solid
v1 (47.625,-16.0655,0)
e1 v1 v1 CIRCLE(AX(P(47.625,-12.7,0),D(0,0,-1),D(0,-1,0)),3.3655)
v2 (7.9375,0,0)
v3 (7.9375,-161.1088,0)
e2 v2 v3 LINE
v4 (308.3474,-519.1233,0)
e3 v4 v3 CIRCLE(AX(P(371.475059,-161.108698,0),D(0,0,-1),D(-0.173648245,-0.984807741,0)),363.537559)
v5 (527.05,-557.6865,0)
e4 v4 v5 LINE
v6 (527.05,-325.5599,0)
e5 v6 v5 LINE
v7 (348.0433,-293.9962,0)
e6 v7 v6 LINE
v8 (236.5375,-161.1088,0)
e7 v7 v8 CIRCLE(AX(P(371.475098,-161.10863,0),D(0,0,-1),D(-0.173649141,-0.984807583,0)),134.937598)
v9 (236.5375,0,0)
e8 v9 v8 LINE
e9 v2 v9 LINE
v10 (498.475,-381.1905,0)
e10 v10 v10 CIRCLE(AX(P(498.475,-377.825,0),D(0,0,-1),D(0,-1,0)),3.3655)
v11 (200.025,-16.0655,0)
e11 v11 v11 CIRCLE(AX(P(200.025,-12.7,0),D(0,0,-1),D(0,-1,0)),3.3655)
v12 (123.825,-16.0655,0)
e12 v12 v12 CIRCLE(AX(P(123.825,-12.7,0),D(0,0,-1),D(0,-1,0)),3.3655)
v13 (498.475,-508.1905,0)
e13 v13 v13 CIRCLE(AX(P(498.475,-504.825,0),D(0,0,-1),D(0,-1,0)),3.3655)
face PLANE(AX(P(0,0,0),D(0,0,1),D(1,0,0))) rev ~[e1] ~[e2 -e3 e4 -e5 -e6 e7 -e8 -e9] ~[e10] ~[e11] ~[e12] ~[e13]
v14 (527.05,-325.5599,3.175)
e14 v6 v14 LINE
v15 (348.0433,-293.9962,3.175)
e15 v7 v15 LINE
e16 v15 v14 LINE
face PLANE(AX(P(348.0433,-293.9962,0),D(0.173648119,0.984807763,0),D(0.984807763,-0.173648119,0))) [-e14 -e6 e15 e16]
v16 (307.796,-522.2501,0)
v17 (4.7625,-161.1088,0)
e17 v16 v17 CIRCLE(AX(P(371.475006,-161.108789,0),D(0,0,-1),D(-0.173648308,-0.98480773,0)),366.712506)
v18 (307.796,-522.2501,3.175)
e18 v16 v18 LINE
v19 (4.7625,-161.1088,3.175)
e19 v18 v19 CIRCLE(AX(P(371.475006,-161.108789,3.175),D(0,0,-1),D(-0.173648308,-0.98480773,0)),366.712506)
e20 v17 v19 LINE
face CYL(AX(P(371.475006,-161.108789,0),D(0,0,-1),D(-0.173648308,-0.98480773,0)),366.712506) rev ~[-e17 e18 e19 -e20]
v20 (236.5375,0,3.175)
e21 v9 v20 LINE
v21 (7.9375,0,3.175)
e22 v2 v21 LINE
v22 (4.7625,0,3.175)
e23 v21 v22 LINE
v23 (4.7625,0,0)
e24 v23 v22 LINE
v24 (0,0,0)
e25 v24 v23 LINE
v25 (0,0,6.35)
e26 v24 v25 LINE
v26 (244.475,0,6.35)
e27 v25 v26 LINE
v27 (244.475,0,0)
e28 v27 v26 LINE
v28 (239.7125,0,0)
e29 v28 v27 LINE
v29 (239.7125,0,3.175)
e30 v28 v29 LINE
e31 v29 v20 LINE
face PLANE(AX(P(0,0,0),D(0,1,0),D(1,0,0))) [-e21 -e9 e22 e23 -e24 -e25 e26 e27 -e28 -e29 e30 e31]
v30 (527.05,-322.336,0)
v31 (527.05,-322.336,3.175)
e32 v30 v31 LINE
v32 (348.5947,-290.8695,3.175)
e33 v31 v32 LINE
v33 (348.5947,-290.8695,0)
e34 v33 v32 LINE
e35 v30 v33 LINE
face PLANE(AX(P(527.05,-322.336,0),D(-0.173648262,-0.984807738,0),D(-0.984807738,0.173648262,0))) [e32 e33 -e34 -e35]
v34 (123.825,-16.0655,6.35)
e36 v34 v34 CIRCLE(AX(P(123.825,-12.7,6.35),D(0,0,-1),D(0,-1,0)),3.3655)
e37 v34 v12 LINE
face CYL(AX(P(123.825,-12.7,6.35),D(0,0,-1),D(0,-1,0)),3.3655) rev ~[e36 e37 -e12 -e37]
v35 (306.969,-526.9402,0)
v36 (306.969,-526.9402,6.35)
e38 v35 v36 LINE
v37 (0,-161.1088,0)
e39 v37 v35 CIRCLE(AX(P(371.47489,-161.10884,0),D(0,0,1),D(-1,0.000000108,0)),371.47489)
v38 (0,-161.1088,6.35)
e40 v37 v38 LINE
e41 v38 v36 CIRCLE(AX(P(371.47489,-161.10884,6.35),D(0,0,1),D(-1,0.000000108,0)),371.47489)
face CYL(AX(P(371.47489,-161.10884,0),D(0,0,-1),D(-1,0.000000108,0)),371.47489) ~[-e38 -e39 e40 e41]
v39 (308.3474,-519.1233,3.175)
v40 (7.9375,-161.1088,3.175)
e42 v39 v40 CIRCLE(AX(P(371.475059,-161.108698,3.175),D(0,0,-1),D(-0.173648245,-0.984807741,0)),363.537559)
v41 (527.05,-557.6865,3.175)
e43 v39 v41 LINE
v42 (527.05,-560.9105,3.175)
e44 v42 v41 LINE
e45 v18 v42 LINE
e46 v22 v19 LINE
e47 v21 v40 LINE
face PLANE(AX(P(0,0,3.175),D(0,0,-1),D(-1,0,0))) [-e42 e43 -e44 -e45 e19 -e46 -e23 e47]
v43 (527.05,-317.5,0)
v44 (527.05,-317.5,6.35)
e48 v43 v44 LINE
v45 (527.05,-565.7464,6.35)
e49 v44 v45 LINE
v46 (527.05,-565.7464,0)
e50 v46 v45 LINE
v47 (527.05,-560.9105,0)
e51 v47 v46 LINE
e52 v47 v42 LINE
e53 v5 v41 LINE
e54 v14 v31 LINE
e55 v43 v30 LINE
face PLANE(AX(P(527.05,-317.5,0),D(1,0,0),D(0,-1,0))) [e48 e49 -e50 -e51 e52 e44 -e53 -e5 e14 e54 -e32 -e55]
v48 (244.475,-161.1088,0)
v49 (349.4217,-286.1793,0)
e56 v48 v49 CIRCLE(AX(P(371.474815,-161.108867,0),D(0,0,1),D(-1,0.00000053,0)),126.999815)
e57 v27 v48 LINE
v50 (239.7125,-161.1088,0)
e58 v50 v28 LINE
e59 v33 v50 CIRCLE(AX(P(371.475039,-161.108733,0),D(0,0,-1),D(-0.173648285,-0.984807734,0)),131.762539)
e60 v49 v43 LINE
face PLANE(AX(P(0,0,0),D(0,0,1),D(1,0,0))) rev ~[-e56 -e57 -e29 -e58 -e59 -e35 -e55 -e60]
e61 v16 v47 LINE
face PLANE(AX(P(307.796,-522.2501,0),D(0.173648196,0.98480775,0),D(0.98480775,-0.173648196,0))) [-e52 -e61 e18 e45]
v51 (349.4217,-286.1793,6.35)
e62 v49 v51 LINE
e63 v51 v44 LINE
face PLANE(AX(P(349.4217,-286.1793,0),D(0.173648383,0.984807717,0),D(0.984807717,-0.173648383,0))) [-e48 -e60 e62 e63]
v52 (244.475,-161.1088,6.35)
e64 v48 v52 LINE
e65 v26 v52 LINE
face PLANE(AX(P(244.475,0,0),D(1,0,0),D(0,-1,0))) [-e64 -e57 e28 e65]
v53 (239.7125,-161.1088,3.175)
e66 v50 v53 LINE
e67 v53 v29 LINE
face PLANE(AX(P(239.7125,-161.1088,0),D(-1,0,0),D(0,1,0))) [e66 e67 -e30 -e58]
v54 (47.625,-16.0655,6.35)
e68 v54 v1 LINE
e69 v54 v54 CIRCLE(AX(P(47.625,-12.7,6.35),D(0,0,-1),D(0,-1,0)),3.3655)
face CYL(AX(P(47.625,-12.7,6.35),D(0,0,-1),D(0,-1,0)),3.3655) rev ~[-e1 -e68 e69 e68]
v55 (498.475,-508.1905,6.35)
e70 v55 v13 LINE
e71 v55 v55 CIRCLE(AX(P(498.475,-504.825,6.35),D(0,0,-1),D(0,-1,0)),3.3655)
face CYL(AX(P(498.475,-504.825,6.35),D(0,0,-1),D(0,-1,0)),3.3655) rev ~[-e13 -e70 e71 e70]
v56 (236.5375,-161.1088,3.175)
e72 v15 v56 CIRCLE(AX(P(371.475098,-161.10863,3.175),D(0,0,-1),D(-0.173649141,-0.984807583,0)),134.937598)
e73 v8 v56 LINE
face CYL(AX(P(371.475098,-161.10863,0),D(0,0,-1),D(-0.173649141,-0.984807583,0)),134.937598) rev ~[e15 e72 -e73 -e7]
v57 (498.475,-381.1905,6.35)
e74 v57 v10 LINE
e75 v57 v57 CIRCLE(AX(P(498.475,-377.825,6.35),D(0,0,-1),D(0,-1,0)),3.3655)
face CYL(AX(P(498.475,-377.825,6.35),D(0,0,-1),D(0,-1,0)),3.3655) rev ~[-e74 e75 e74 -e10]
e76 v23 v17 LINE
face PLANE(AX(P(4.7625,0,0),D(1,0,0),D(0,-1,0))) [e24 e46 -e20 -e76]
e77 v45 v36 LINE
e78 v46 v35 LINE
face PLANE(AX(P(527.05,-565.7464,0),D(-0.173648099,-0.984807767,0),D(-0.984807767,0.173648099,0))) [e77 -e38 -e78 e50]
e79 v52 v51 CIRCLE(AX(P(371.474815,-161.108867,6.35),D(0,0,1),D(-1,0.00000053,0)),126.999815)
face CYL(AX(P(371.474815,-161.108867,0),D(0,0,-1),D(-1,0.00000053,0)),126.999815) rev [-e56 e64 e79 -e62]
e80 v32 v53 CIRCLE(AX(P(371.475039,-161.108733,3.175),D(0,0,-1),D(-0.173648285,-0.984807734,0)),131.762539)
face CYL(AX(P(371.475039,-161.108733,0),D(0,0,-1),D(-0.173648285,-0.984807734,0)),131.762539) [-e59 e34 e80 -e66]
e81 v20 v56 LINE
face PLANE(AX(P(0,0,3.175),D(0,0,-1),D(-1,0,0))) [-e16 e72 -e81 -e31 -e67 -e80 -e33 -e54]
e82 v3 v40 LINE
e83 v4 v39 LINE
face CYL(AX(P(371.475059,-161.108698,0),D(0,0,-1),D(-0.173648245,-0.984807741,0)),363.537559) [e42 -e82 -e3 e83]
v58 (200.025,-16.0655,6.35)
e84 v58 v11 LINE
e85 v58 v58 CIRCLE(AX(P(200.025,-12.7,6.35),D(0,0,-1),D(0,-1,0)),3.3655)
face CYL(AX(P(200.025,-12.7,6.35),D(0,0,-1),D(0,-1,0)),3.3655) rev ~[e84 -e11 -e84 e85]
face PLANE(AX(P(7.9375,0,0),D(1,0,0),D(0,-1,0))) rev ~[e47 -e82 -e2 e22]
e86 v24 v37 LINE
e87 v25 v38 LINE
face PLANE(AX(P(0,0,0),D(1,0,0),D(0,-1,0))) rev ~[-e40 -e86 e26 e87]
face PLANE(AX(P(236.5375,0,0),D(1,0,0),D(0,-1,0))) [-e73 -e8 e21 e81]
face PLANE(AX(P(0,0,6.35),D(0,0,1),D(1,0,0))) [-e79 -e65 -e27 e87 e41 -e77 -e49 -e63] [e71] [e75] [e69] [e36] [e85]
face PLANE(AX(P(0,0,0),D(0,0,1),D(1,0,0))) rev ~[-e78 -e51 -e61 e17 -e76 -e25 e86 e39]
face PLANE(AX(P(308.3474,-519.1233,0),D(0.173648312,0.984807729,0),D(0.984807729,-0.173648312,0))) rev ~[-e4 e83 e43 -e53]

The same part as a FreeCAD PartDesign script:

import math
import FreeCAD as App
import Part
import Sketcher
from FreeCAD import Vector
Q = App.Units.Quantity

doc = App.newDocument("Part")
body = doc.addObject("PartDesign::Body", "Body")

sketch1 = body.newObject("Sketcher::SketchObject", "Sketch")
sketch1.AttachmentSupport = (doc.getObject("XY_Plane"), [""])
sketch1.MapMode = "FlatFace"
sketch1.addGeometry([
    Part.LineSegment(Vector(244, 0, 0), Vector(0, 0, 0)),
    Part.LineSegment(Vector(0, 0, 0), Vector(0, -161, 0)),
    Part.ArcOfCircle(Part.Circle(Vector(371, -161, 0), Vector(0, 0, 1), 371), math.radians(180), math.radians(260)),
    Part.LineSegment(Vector(307, -527, 0), Vector(527, -566, 0)),
    Part.LineSegment(Vector(527, -566, 0), Vector(527, -318, 0)),
    Part.LineSegment(Vector(527, -318, 0), Vector(349, -286, 0)),
    Part.ArcOfCircle(Part.Circle(Vector(371, -161, 0), Vector(0, 0, 1), 127), math.radians(180), math.radians(260)),
    Part.LineSegment(Vector(244, -161, 0), Vector(244, 0, 0)),
], False)
sketch1.addConstraint([
    Sketcher.Constraint("Coincident", 0, 2, 1, 1),
    Sketcher.Constraint("Tangent", 1, 2, 2, 1),
    Sketcher.Constraint("Tangent", 2, 2, 3, 1),
    Sketcher.Constraint("Coincident", 3, 2, 4, 1),
    Sketcher.Constraint("Coincident", 4, 2, 5, 1),
    Sketcher.Constraint("Tangent", 5, 2, 6, 2),
    Sketcher.Constraint("Tangent", 6, 1, 7, 1),
    Sketcher.Constraint("Coincident", 7, 2, 0, 1),
    Sketcher.Constraint("Horizontal", 0),
    Sketcher.Constraint("Vertical", 1),
    Sketcher.Constraint("Vertical", 4),
    Sketcher.Constraint("Vertical", 7),
    Sketcher.Constraint("Coincident", 0, 2, -1, 1),
    Sketcher.Constraint("Coincident", 6, 3, 2, 3),
    Sketcher.Constraint("Parallel", 3, 5),
    Sketcher.Constraint("Radius", 6, Q("5 in")),
    Sketcher.Constraint("Radius", 2, Q("14.625 in")),
    Sketcher.Constraint("DistanceY", 4, 2, -1, 1, Q("12.5 in")),
    Sketcher.Constraint("DistanceX", -1, 1, 3, 2, Q("20.75 in")),
    Sketcher.Constraint("Angle", 3, Q("-10 deg")),
])
pad1 = body.newObject("PartDesign::Pad", "Pad")
pad1.Profile = sketch1
pad1.Length = Q("0.25 in")

sketch2 = body.newObject("Sketcher::SketchObject", "Sketch001")
sketch2.AttachmentSupport = (doc.getObject("XY_Plane"), [""])
sketch2.MapMode = "FlatFace"
sketch2.addGeometry([
    Part.LineSegment(Vector(4.8, -161.1, 0), Vector(4.8, 0, 0)),
    Part.LineSegment(Vector(4.8, 0, 0), Vector(7.9, 0, 0)),
    Part.LineSegment(Vector(7.9, 0, 0), Vector(7.9, -161.1, 0)),
    Part.ArcOfCircle(Part.Circle(Vector(371.5, -161.1, 0), Vector(0, 0, 1), 363.5), math.radians(180), math.radians(260)),
    Part.LineSegment(Vector(308.3, -519.1, 0), Vector(527, -557.7, 0)),
    Part.LineSegment(Vector(527, -557.7, 0), Vector(527, -560.9, 0)),
    Part.LineSegment(Vector(527, -560.9, 0), Vector(307.8, -522.3, 0)),
    Part.ArcOfCircle(Part.Circle(Vector(371.5, -161.1, 0), Vector(0, 0, 1), 366.7), math.radians(180), math.radians(260)),
    Part.LineSegment(Vector(236.5, -161.1, 0), Vector(236.5, 0, 0)),
    Part.LineSegment(Vector(236.5, 0, 0), Vector(239.7, 0, 0)),
    Part.LineSegment(Vector(239.7, 0, 0), Vector(239.7, -161.1, 0)),
    Part.ArcOfCircle(Part.Circle(Vector(371.5, -161.1, 0), Vector(0, 0, 1), 131.8), math.radians(180), math.radians(260)),
    Part.LineSegment(Vector(348.6, -290.9, 0), Vector(527, -322.3, 0)),
    Part.LineSegment(Vector(527, -322.3, 0), Vector(527, -325.6, 0)),
    Part.LineSegment(Vector(527, -325.6, 0), Vector(348, -294, 0)),
    Part.ArcOfCircle(Part.Circle(Vector(371.5, -161.1, 0), Vector(0, 0, 1), 134.9), math.radians(180), math.radians(260)),
], False)
sketch2.addConstraint([
    Sketcher.Constraint("Coincident", 0, 2, 1, 1),
    Sketcher.Constraint("Coincident", 1, 2, 2, 1),
    Sketcher.Constraint("Tangent", 2, 2, 3, 1),
    Sketcher.Constraint("Tangent", 3, 2, 4, 1),
    Sketcher.Constraint("Coincident", 4, 2, 5, 1),
    Sketcher.Constraint("Coincident", 5, 2, 6, 1),
    Sketcher.Constraint("Tangent", 6, 2, 7, 2),
    Sketcher.Constraint("Tangent", 7, 1, 0, 1),
    Sketcher.Constraint("Coincident", 8, 2, 9, 1),
    Sketcher.Constraint("Coincident", 9, 2, 10, 1),
    Sketcher.Constraint("Tangent", 10, 2, 11, 1),
    Sketcher.Constraint("Tangent", 11, 2, 12, 1),
    Sketcher.Constraint("Coincident", 12, 2, 13, 1),
    Sketcher.Constraint("Coincident", 13, 2, 14, 1),
    Sketcher.Constraint("Tangent", 14, 2, 15, 2),
    Sketcher.Constraint("Tangent", 15, 1, 8, 1),
    Sketcher.Constraint("Vertical", 0),
    Sketcher.Constraint("Horizontal", 1),
    Sketcher.Constraint("Vertical", 2),
    Sketcher.Constraint("Vertical", 5),
    Sketcher.Constraint("Vertical", 8),
    Sketcher.Constraint("Horizontal", 9),
    Sketcher.Constraint("Vertical", 10),
    Sketcher.Constraint("Vertical", 13),
    Sketcher.Constraint("Coincident", 7, 3, 3, 3),
    Sketcher.Constraint("Coincident", 11, 3, 3, 3),
    Sketcher.Constraint("Coincident", 15, 3, 3, 3),
    Sketcher.Constraint("PointOnObject", 0, 2, -1),
    Sketcher.Constraint("PointOnObject", 8, 2, -1),
    Sketcher.Constraint("Parallel", 4, 6),
    Sketcher.Constraint("Parallel", 6, 12),
    Sketcher.Constraint("Parallel", 12, 14),
    Sketcher.Constraint("Vertical", 5, 2, 12, 2),
    Sketcher.Constraint("Equal", 1, 9),
    Sketcher.Constraint("DistanceX", 1, 1, 1, 2, Q("0.125 in")),
    Sketcher.Constraint("DistanceX", -1, 1, 0, 2, Q("0.1875 in")),
    Sketcher.Constraint("Angle", 4, Q("-10 deg")),
    Sketcher.Constraint("Radius", 3, Q("14.3125 in")),
    Sketcher.Constraint("Radius", 11, Q("5.1875 in")),
    Sketcher.Constraint("DistanceX", -1, 1, 4, 2, Q("20.75 in")),
    Sketcher.Constraint("DistanceY", 0, 1, 0, 2, Q("161.1088 mm")),
])
pocket1 = body.newObject("PartDesign::Pocket", "Pocket")
pocket1.Profile = sketch2
pocket1.Length = Q("0.125 in")
pocket1.Reversed = True

sketch3 = body.newObject("Sketcher::SketchObject", "Sketch002")
sketch3.AttachmentSupport = (doc.getObject("XY_Plane"), [""])
sketch3.MapMode = "FlatFace"
sketch3.AttachmentOffset = App.Placement(Vector(0, 0, 0.25 * 25.4), App.Rotation())
sketch3.addGeometry(Part.Circle(Vector(498.5, -377.8, 0), Vector(0, 0, 1), 3.4), False)
sketch3.addConstraint([
    Sketcher.Constraint("Diameter", 0, Q("0.265 in")),
    Sketcher.Constraint("DistanceX", -1, 1, 0, 3, Q("19.625 in")),
    Sketcher.Constraint("DistanceY", 0, 3, -1, 1, Q("14.875 in")),
])
doc.recompute()
hole = body.newObject("PartDesign::Hole", "Hole")
hole.Profile = sketch3
hole.ThreadType = "None"
hole.Diameter = Q("0.265 in")
hole.DepthType = "Dimension"
hole.Depth = Q("1 in")
hole.DrillPoint = "Angled"
hole.DrillPointAngle = 118
doc.recompute()

linearpattern = body.newObject("PartDesign::LinearPattern", "LinearPattern")
linearpattern.Originals = [hole]
linearpattern.Direction = (doc.getObject("Y_Axis"), [""])
linearpattern.Mode = "offset"
linearpattern.Offset = Q("5 in")
linearpattern.Occurrences = 2
linearpattern.Reversed = True
body.Tip = linearpattern

sketch4 = body.newObject("Sketcher::SketchObject", "Sketch003")
sketch4.AttachmentSupport = (doc.getObject("XY_Plane"), [""])
sketch4.MapMode = "FlatFace"
sketch4.AttachmentOffset = App.Placement(Vector(0, 0, 0.25 * 25.4), App.Rotation())
sketch4.addGeometry(Part.Circle(Vector(200, -12.7, 0), Vector(0, 0, 1), 3.4), False)
sketch4.addConstraint([
    Sketcher.Constraint("Diameter", 0, Q("0.265 in")),
    Sketcher.Constraint("DistanceY", 0, 3, -1, 1, Q("0.5 in")),
    Sketcher.Constraint("DistanceX", -1, 1, 0, 3, Q("7.875 in")),
])
doc.recompute()
hole2 = body.newObject("PartDesign::Hole", "Hole001")
hole2.Profile = sketch4
hole2.ThreadType = "None"
hole2.Diameter = Q("0.265 in")
hole2.DepthType = "Dimension"
hole2.Depth = Q("1 in")
hole2.DrillPoint = "Angled"
hole2.DrillPointAngle = 118
doc.recompute()

linearpattern2 = body.newObject("PartDesign::LinearPattern", "LinearPattern001")
linearpattern2.Originals = [hole2]
linearpattern2.Direction = (doc.getObject("X_Axis"), [""])
linearpattern2.Mode = "offset"
linearpattern2.Offset = Q("3 in")
linearpattern2.Occurrences = 3
linearpattern2.Reversed = True
body.Tip = linearpattern2

doc.recompute()
